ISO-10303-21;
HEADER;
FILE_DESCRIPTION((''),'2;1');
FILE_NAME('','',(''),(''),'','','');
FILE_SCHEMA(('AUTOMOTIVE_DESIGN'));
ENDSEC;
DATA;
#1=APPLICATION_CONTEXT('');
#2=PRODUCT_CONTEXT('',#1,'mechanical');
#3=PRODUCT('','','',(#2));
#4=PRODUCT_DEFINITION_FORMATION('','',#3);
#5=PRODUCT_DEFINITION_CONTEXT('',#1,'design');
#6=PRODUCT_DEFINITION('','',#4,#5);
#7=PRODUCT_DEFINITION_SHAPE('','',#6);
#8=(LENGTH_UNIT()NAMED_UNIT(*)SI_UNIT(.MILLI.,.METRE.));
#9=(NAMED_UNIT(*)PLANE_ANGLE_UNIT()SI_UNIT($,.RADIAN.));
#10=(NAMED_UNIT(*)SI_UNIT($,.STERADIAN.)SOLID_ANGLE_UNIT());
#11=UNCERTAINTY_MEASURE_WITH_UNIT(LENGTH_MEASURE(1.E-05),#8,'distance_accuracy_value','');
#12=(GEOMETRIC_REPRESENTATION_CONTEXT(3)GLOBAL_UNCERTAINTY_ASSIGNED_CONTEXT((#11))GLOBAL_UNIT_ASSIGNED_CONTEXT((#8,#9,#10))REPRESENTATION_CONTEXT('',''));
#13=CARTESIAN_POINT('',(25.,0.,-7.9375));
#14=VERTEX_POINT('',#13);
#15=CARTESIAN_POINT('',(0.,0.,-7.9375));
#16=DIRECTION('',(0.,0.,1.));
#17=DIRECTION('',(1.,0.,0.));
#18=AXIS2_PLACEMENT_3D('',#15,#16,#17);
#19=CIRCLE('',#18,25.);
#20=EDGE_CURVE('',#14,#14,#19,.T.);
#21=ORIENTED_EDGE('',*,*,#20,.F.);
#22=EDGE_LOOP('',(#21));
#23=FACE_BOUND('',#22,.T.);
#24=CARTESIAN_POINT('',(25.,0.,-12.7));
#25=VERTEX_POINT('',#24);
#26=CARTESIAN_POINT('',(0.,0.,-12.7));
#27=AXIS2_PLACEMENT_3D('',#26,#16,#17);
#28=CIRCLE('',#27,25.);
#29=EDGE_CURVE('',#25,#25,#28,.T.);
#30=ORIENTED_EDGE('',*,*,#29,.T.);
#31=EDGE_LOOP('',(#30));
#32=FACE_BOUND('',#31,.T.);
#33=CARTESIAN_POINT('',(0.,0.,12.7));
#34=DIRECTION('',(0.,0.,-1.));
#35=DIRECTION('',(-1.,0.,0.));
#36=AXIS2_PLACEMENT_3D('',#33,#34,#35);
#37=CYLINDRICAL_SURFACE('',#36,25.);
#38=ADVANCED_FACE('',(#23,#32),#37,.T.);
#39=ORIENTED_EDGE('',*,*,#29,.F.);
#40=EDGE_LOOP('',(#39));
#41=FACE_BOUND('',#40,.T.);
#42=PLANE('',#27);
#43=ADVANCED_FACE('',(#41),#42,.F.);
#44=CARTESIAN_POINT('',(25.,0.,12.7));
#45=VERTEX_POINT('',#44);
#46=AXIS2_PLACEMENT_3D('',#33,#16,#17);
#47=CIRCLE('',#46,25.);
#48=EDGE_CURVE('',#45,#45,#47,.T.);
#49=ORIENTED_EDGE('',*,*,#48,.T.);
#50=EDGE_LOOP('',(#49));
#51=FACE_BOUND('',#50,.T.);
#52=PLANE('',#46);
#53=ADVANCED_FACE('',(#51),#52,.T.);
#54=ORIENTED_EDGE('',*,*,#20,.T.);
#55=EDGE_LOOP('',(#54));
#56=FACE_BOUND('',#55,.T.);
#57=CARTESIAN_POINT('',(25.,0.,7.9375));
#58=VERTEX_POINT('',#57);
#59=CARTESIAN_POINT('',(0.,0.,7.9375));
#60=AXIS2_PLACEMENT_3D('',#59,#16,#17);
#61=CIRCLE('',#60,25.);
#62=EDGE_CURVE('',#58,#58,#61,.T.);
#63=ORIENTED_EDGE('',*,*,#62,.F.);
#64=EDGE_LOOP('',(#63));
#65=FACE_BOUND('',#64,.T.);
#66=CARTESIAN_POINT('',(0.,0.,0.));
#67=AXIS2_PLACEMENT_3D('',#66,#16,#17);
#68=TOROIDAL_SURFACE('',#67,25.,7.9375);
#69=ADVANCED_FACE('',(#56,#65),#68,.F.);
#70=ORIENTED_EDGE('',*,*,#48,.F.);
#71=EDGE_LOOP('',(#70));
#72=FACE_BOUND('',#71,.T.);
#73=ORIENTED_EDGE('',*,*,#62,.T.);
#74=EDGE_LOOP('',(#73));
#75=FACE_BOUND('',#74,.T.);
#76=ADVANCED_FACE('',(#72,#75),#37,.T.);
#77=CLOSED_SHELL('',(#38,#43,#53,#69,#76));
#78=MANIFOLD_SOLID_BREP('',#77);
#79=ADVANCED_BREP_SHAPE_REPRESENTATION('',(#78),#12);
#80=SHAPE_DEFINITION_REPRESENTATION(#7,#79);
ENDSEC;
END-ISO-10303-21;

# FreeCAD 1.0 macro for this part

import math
import FreeCAD as App
import Part
import Sketcher
Q = App.Units.Quantity

doc = App.newDocument("Part")
body = doc.addObject("PartDesign::Body", "Body")

sketch1 = body.newObject("Sketcher::SketchObject", "Sketch")
sketch1.AttachmentSupport = (doc.getObject("XY_Plane"), [""])
sketch1.MapMode = "FlatFace"
sketch1.addGeometry(Part.Circle(App.Vector(0, 0, 0), App.Vector(0, 0, 1), 25), False)
sketch1.addConstraint([
    Sketcher.Constraint("Coincident", 0, 3, -1, 1),
    Sketcher.Constraint("Diameter", 0, Q("50 mm")),
])
pad1 = body.newObject("PartDesign::Pad", "Pad")
pad1.Profile = sketch1
pad1.Length = Q("1 in")
pad1.Midplane = True

sketch2 = body.newObject("Sketcher::SketchObject", "Sketch001")
sketch2.AttachmentSupport = (doc.getObject("XZ_Plane"), [""])
sketch2.MapMode = "FlatFace"
sketch2.addGeometry([
    Part.ArcOfCircle(Part.Circle(App.Vector(-25, 0, 0), App.Vector(0, 0, 1), 8), math.radians(-90), math.radians(90)),
    Part.LineSegment(App.Vector(-25, -8, 0), App.Vector(-25, 8, 0)),
], False)
sketch2.addConstraint([
    Sketcher.Constraint("Coincident", 0, 1, 1, 1),
    Sketcher.Constraint("Coincident", 1, 2, 0, 2),
    Sketcher.Constraint("Vertical", 1),
    Sketcher.Constraint("PointOnObject", 0, 3, -1),
    Sketcher.Constraint("Radius", 0, Q("0.3125 in")),
    Sketcher.Constraint("DistanceX", 0, 3, -1, 1, Q("25 mm")),
    Sketcher.Constraint("DistanceX", 0, 1, -1, 1, Q("25 mm")),
])
groove = body.newObject("PartDesign::Groove", "Groove")
groove.Profile = sketch2
groove.ReferenceAxis = (sketch2, ["V_Axis"])
groove.Angle = 360

doc.recompute()
